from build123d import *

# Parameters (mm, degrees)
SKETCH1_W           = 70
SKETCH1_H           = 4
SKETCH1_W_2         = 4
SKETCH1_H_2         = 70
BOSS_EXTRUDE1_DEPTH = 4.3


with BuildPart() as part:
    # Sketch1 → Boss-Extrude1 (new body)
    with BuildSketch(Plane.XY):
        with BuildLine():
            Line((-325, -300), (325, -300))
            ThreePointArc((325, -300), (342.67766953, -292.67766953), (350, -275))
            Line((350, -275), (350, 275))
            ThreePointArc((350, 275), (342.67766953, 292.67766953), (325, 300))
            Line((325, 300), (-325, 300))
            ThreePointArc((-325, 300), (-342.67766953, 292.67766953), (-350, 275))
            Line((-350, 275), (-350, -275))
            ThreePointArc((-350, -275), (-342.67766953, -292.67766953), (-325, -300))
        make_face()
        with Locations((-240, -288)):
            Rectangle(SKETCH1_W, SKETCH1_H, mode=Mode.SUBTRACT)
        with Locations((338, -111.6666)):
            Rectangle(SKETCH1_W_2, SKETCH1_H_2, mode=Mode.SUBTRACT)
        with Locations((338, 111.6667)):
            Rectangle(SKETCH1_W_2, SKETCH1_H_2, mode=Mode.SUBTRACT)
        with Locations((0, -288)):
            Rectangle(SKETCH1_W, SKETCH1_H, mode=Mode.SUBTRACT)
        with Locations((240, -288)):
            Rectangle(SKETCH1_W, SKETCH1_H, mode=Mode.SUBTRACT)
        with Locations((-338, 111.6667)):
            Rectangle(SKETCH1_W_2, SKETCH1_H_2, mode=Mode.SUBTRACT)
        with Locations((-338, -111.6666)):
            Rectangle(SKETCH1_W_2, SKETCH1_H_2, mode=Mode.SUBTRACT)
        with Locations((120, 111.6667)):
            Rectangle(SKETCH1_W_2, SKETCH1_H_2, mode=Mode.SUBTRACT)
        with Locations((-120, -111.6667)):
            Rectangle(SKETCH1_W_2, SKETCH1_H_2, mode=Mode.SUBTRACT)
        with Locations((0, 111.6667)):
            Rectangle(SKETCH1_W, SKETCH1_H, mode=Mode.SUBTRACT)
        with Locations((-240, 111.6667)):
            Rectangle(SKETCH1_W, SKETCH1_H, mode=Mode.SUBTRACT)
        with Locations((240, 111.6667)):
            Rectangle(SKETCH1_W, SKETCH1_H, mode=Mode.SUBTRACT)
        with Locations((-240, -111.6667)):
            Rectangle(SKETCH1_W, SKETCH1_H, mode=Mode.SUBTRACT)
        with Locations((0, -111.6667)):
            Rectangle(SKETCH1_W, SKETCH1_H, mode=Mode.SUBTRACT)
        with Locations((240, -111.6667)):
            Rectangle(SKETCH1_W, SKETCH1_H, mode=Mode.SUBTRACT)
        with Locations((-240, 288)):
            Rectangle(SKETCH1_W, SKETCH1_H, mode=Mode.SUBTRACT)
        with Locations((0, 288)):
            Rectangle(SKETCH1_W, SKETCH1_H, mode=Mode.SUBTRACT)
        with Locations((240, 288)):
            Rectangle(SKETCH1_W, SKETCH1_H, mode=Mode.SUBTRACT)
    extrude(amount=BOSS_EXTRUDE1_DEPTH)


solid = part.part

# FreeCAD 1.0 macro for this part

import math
import FreeCAD as App
import Part
import Sketcher
Q = App.Units.Quantity


def add_polygon(sketch, points):
    """Adds a closed chain of lines whose ends are joined by coincident constraints."""
    first, n = sketch.GeometryCount, len(points)
    for a, b in zip(points, points[1:] + points[:1]):
        sketch.addGeometry(Part.LineSegment(App.Vector(*a, 0), App.Vector(*b, 0)), False)
    for i in range(n):
        sketch.addConstraint(Sketcher.Constraint("Coincident", first + i, 2, first + (i + 1) % n, 1))

doc = App.newDocument("Part")
body = doc.addObject("PartDesign::Body", "Body")

# Sketch on XY plane
sketch1 = doc.addObject("Sketcher::SketchObject", "Sketch")
body.addObject(sketch1)
sketch1.AttachmentSupport = (doc.XY_Plane, [""])
sketch1.MapMode = "FlatFace"
sketch1.addGeometry(Part.LineSegment(App.Vector(-325, -300, 0), App.Vector(325, -300, 0)), False)  # 0
sketch1.addGeometry(Part.ArcOfCircle(Part.Circle(App.Vector(325, -275, 0), App.Vector(0, 0, 1), 25), math.radians(-90), math.radians(0)), False)  # 1
sketch1.addGeometry(Part.LineSegment(App.Vector(350, -275, 0), App.Vector(350, 275, 0)), False)  # 2
sketch1.addGeometry(Part.ArcOfCircle(Part.Circle(App.Vector(325, 275, 0), App.Vector(0, 0, 1), 25), math.radians(0), math.radians(90)), False)  # 3
sketch1.addGeometry(Part.LineSegment(App.Vector(325, 300, 0), App.Vector(-325, 300, 0)), False)  # 4
sketch1.addGeometry(Part.ArcOfCircle(Part.Circle(App.Vector(-325, 275, 0), App.Vector(0, 0, 1), 25), math.radians(90), math.radians(180)), False)  # 5
sketch1.addGeometry(Part.LineSegment(App.Vector(-350, 275, 0), App.Vector(-350, -275, 0)), False)  # 6
sketch1.addGeometry(Part.ArcOfCircle(Part.Circle(App.Vector(-325, -275, 0), App.Vector(0, 0, 1), 25), math.radians(180), math.radians(270)), False)  # 7
add_polygon(sketch1, [(-205, -290), (-275, -290), (-275, -286), (-205, -286)])  # lines 8-11
add_polygon(sketch1, [(-336, -146.7), (-340, -146.7), (-340, -76.7), (-336, -76.7)])  # lines 12-15
add_polygon(sketch1, [(-205, -113.7), (-275, -113.7), (-275, -109.7), (-205, -109.7)])  # lines 16-19
add_polygon(sketch1, [(-118, -146.7), (-122, -146.7), (-122, -76.7), (-118, -76.7)])  # lines 20-23
add_polygon(sketch1, [(35, -290), (-35, -290), (-35, -286), (35, -286)])  # lines 24-27
add_polygon(sketch1, [(275, -290), (205, -290), (205, -286), (275, -286)])  # lines 28-31
add_polygon(sketch1, [(35, -113.7), (-35, -113.7), (-35, -109.7), (35, -109.7)])  # lines 32-35
add_polygon(sketch1, [(275, -113.7), (205, -113.7), (205, -109.7), (275, -109.7)])  # lines 36-39
add_polygon(sketch1, [(340, -146.7), (336, -146.7), (336, -76.7), (340, -76.7)])  # lines 40-43
add_polygon(sketch1, [(-336, 76.7), (-340, 76.7), (-340, 146.7), (-336, 146.7)])  # lines 44-47
add_polygon(sketch1, [(-205, 109.7), (-275, 109.7), (-275, 113.7), (-205, 113.7)])  # lines 48-51
add_polygon(sketch1, [(-205, 286), (-275, 286), (-275, 290), (-205, 290)])  # lines 52-55
add_polygon(sketch1, [(35, 109.7), (-35, 109.7), (-35, 113.7), (35, 113.7)])  # lines 56-59
add_polygon(sketch1, [(122, 76.7), (118, 76.7), (118, 146.7), (122, 146.7)])  # lines 60-63
add_polygon(sketch1, [(275, 109.7), (205, 109.7), (205, 113.7), (275, 113.7)])  # lines 64-67
add_polygon(sketch1, [(340, 76.7), (336, 76.7), (336, 146.7), (340, 146.7)])  # lines 68-71
add_polygon(sketch1, [(35, 286), (-35, 286), (-35, 290), (35, 290)])  # lines 72-75
add_polygon(sketch1, [(275, 286), (205, 286), (205, 290), (275, 290)])  # lines 76-79
sketch1.addConstraint([
    Sketcher.Constraint("Tangent", 0, 2, 1, 1),
    Sketcher.Constraint("Tangent", 1, 2, 2, 1),
    Sketcher.Constraint("Tangent", 2, 2, 3, 1),
    Sketcher.Constraint("Tangent", 3, 2, 4, 1),
    Sketcher.Constraint("Tangent", 4, 2, 5, 1),
    Sketcher.Constraint("Tangent", 5, 2, 6, 1),
    Sketcher.Constraint("Tangent", 6, 2, 7, 1),
    Sketcher.Constraint("Tangent", 7, 2, 0, 1),
    Sketcher.Constraint("Horizontal", 0),
    Sketcher.Constraint("Vertical", 2),
    Sketcher.Constraint("Horizontal", 4),
    Sketcher.Constraint("Vertical", 6),
    Sketcher.Constraint("Horizontal", 8),
    Sketcher.Constraint("Vertical", 9),
    Sketcher.Constraint("Horizontal", 10),
    Sketcher.Constraint("Vertical", 11),
    Sketcher.Constraint("Horizontal", 12),
    Sketcher.Constraint("Vertical", 13),
    Sketcher.Constraint("Horizontal", 14),
    Sketcher.Constraint("Vertical", 15),
    Sketcher.Constraint("Horizontal", 16),
    Sketcher.Constraint("Vertical", 17),
    Sketcher.Constraint("Horizontal", 18),
    Sketcher.Constraint("Vertical", 19),
    Sketcher.Constraint("Horizontal", 20),
    Sketcher.Constraint("Vertical", 21),
    Sketcher.Constraint("Horizontal", 22),
    Sketcher.Constraint("Vertical", 23),
    Sketcher.Constraint("Horizontal", 24),
    Sketcher.Constraint("Vertical", 25),
    Sketcher.Constraint("Horizontal", 26),
    Sketcher.Constraint("Vertical", 27),
    Sketcher.Constraint("Horizontal", 28),
    Sketcher.Constraint("Vertical", 29),
    Sketcher.Constraint("Horizontal", 30),
    Sketcher.Constraint("Vertical", 31),
    Sketcher.Constraint("Horizontal", 32),
    Sketcher.Constraint("Vertical", 33),
    Sketcher.Constraint("Horizontal", 34),
    Sketcher.Constraint("Vertical", 35),
    Sketcher.Constraint("Horizontal", 36),
    Sketcher.Constraint("Vertical", 37),
    Sketcher.Constraint("Horizontal", 38),
    Sketcher.Constraint("Vertical", 39),
    Sketcher.Constraint("Horizontal", 40),
    Sketcher.Constraint("Vertical", 41),
    Sketcher.Constraint("Horizontal", 42),
    Sketcher.Constraint("Vertical", 43),
    Sketcher.Constraint("Horizontal", 44),
    Sketcher.Constraint("Vertical", 45),
    Sketcher.Constraint("Horizontal", 46),
    Sketcher.Constraint("Vertical", 47),
    Sketcher.Constraint("Horizontal", 48),
    Sketcher.Constraint("Vertical", 49),
    Sketcher.Constraint("Horizontal", 50),
    Sketcher.Constraint("Vertical", 51),
    Sketcher.Constraint("Horizontal", 52),
    Sketcher.Constraint("Vertical", 53),
    Sketcher.Constraint("Horizontal", 54),
    Sketcher.Constraint("Vertical", 55),
    Sketcher.Constraint("Horizontal", 56),
    Sketcher.Constraint("Vertical", 57),
    Sketcher.Constraint("Horizontal", 58),
    Sketcher.Constraint("Vertical", 59),
    Sketcher.Constraint("Horizontal", 60),
    Sketcher.Constraint("Vertical", 61),
    Sketcher.Constraint("Horizontal", 62),
    Sketcher.Constraint("Vertical", 63),
    Sketcher.Constraint("Horizontal", 64),
    Sketcher.Constraint("Vertical", 65),
    Sketcher.Constraint("Horizontal", 66),
    Sketcher.Constraint("Vertical", 67),
    Sketcher.Constraint("Horizontal", 68),
    Sketcher.Constraint("Vertical", 69),
    Sketcher.Constraint("Horizontal", 70),
    Sketcher.Constraint("Vertical", 71),
    Sketcher.Constraint("Horizontal", 72),
    Sketcher.Constraint("Vertical", 73),
    Sketcher.Constraint("Horizontal", 74),
    Sketcher.Constraint("Vertical", 75),
    Sketcher.Constraint("Horizontal", 76),
    Sketcher.Constraint("Vertical", 77),
    Sketcher.Constraint("Horizontal", 78),
    Sketcher.Constraint("Vertical", 79),
    Sketcher.Constraint("Equal", 1, 3),
    Sketcher.Constraint("Equal", 3, 5),
    Sketcher.Constraint("Equal", 5, 7),
    Sketcher.Constraint("Symmetric", 1, 3, 5, 3, -1, 1),
    Sketcher.Constraint("Symmetric", 38, 2, 48, 2, -1, 1),
    Sketcher.Constraint("Symmetric", 36, 2, 50, 2, -1, 1),
    Sketcher.Constraint("Symmetric", 30, 2, 52, 2, -1, 1),
    Sketcher.Constraint("Symmetric", 28, 2, 54, 2, -1, 1),
    Sketcher.Constraint("Symmetric", 34, 2, 56, 2, -1, 1),
    Sketcher.Constraint("Symmetric", 32, 2, 58, 2, -1, 1),
    Sketcher.Constraint("Symmetric", 22, 2, 60, 2, -1, 1),
    Sketcher.Constraint("Symmetric", 20, 2, 62, 2, -1, 1),
    Sketcher.Constraint("Symmetric", 18, 2, 64, 2, -1, 1),
    Sketcher.Constraint("Symmetric", 16, 2, 66, 2, -1, 1),
    Sketcher.Constraint("Symmetric", 26, 2, 72, 2, -1, 1),
    Sketcher.Constraint("Symmetric", 24, 2, 74, 2, -1, 1),
    Sketcher.Constraint("Symmetric", 10, 2, 76, 2, -1, 1),
    Sketcher.Constraint("Symmetric", 8, 2, 78, 2, -1, 1),
    Sketcher.Constraint("Symmetric", 11, 2, 28, 2, -2),
    Sketcher.Constraint("Symmetric", 9, 2, 30, 2, -2),
    Sketcher.Constraint("Symmetric", 19, 2, 36, 2, -2),
    Sketcher.Constraint("Symmetric", 17, 2, 38, 2, -2),
    Sketcher.Constraint("Symmetric", 15, 2, 40, 2, -2),
    Sketcher.Constraint("Symmetric", 13, 2, 42, 2, -2),
    Sketcher.Constraint("Symmetric", 47, 2, 68, 2, -2),
    Sketcher.Constraint("Symmetric", 45, 2, 70, 2, -2),
    Sketcher.Constraint("Horizontal", 11, 2, 24, 2),
    Sketcher.Constraint("Horizontal", 10, 2, 25, 2),
    Sketcher.Constraint("Horizontal", 19, 2, 32, 2),
    Sketcher.Constraint("Horizontal", 18, 2, 33, 2),
    Sketcher.Constraint("Horizontal", 47, 2, 60, 2),
    Sketcher.Constraint("Horizontal", 46, 2, 61, 2),
    Sketcher.Constraint("Vertical", 9, 2, 16, 2),
    Sketcher.Constraint("Vertical", 11, 2, 18, 2),
    Sketcher.Constraint("Vertical", 25, 2, 32, 2),
    Sketcher.Constraint("Vertical", 27, 2, 34, 2),
    Sketcher.Constraint("Vertical", 13, 2, 44, 2),
    Sketcher.Constraint("Vertical", 15, 2, 46, 2),
    Sketcher.Constraint("Vertical", 33, 2, 56, 2),
    Sketcher.Constraint("Equal", 14, 20),
    Sketcher.Constraint("Equal", 18, 24),
    Sketcher.Constraint("Equal", 70, 9),
    Sketcher.Constraint("Equal", 78, 13),
    Sketcher.Constraint("Equal", 11, 17),
    Sketcher.Constraint("Equal", 15, 21),
    Sketcher.Constraint("Radius", 1, Q("25 mm")),
    Sketcher.Constraint("DistanceX", 0, 1, 0, 2, Q("650 mm")),
    Sketcher.Constraint("DistanceX", 8, 2, 8, 1, Q("70 mm")),
    Sketcher.Constraint("DistanceX", 12, 2, 12, 1, Q("4 mm")),
    Sketcher.Constraint("DistanceY", 2, 1, 2, 2, Q("550 mm")),
    Sketcher.Constraint("DistanceX", 8, 2, -1, 1, Q("275 mm")),
    Sketcher.Constraint("DistanceY", 8, 2, -1, 1, Q("290 mm")),
    Sketcher.Constraint("DistanceX", 12, 2, -1, 1, Q("340 mm")),
    Sketcher.Constraint("DistanceX", 20, 2, -1, 1, Q("122 mm")),
    Sketcher.Constraint("DistanceY", 12, 2, -1, 1, Q("146.6666 mm")),
    Sketcher.Constraint("DistanceY", 16, 2, -1, 1, Q("113.6667 mm")),
    Sketcher.Constraint("DistanceY", 20, 2, -1, 1, Q("146.6667 mm")),
])
pad1 = doc.addObject("PartDesign::Pad", "Pad")
body.addObject(pad1)
pad1.Profile = sketch1
pad1.Length = 4.3

doc.recompute()
